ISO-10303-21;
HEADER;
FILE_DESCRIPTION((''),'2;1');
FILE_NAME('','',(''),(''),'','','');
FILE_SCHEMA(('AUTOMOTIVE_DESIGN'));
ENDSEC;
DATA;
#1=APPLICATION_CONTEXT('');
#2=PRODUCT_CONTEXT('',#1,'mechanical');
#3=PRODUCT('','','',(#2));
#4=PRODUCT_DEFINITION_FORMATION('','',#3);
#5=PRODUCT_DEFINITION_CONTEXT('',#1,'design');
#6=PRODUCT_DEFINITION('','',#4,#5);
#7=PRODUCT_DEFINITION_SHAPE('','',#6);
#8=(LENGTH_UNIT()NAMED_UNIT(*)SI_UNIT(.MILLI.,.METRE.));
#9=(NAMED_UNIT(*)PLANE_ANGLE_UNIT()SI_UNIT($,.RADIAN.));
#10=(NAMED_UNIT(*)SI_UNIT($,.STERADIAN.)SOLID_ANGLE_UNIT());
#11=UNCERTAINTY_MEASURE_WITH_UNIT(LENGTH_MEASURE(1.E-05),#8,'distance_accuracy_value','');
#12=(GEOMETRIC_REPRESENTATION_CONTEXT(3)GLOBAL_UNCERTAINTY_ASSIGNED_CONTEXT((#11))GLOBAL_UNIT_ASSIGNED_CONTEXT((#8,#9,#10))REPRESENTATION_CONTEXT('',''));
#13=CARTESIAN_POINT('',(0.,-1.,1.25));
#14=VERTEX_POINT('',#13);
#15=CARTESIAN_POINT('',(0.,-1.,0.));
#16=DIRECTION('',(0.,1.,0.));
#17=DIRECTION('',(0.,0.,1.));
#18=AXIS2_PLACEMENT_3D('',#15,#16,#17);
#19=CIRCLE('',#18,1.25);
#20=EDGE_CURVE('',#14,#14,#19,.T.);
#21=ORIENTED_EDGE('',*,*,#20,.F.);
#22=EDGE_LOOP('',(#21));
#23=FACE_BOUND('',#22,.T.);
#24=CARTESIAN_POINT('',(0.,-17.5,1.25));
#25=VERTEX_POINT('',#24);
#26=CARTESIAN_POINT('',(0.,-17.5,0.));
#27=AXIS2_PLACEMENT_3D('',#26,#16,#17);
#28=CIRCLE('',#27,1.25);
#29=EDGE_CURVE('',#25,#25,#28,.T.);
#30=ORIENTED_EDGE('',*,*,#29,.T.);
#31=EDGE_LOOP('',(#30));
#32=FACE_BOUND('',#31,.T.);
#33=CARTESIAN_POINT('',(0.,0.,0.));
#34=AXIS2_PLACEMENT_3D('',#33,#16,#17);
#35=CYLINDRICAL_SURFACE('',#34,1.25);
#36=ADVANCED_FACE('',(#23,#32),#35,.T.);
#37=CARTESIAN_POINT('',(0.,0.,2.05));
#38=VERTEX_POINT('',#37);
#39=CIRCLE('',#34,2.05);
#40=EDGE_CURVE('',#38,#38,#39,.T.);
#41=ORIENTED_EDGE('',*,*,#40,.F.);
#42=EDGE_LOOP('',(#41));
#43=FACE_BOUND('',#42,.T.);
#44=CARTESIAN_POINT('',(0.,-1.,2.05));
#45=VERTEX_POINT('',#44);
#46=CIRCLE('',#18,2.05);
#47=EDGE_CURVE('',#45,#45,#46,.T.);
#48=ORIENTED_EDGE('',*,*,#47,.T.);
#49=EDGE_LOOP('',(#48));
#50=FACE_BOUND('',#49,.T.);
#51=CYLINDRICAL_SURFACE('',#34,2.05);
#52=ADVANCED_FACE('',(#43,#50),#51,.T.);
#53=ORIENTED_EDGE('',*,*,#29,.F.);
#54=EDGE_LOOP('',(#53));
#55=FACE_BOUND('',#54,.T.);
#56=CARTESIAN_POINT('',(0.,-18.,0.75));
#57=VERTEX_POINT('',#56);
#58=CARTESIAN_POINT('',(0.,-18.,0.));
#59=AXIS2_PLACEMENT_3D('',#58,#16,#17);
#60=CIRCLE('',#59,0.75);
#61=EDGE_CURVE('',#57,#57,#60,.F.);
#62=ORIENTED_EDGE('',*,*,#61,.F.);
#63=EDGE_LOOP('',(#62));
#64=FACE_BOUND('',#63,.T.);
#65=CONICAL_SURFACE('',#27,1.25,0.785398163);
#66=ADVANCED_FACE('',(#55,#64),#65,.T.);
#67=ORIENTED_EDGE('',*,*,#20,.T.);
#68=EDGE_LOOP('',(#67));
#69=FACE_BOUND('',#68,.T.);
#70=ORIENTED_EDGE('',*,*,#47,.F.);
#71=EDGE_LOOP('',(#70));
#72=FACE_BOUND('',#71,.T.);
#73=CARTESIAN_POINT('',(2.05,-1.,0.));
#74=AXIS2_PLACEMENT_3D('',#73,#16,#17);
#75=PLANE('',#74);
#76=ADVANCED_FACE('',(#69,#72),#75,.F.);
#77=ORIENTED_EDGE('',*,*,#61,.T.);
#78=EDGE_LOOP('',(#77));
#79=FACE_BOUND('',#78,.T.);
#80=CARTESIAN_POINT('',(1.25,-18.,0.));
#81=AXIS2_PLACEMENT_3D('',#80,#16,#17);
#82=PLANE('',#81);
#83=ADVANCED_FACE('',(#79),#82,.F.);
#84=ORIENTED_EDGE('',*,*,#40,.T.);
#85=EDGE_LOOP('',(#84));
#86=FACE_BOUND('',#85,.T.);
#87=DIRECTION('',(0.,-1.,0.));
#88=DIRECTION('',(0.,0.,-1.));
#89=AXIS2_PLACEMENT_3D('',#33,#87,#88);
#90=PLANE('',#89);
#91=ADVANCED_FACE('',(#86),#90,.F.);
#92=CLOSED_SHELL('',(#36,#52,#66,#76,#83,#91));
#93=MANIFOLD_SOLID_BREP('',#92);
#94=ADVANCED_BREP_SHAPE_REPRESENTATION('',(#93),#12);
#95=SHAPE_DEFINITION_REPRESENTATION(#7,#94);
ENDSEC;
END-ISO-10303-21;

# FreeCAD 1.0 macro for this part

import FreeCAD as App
import Part
import Sketcher


def edges_at(feature, points):
    """Names of the edges that pass closest to the given points."""
    edges = feature.Shape.Edges
    near = lambda p: min(range(len(edges)), key=lambda i: edges[i].distToShape(Part.Vertex(*p))[0])
    return sorted({f"Edge{near(p) + 1}" for p in points})


def add_polygon(sketch, points):
    """Adds a closed chain of lines whose ends are joined by coincident constraints."""
    first, n = sketch.GeometryCount, len(points)
    for a, b in zip(points, points[1:] + points[:1]):
        sketch.addGeometry(Part.LineSegment(App.Vector(*a, 0), App.Vector(*b, 0)), False)
    for i in range(n):
        sketch.addConstraint(Sketcher.Constraint("Coincident", first + i, 2, first + (i + 1) % n, 1))

doc = App.newDocument("Part")
body = doc.addObject("PartDesign::Body", "Body")

sketch1 = body.newObject("Sketcher::SketchObject", "Sketch")
sketch1.AttachmentSupport = (doc.getObject("XY_Plane"), [""])
sketch1.MapMode = "FlatFace"
add_polygon(sketch1, [(2, 0), (0, 0), (0, -18), (1.2, -18), (1.2, -1), (2, -1)])
sketch1.addConstraint([
    Sketcher.Constraint("Horizontal", 0),
    Sketcher.Constraint("Vertical", 1),
    Sketcher.Constraint("Horizontal", 2),
    Sketcher.Constraint("Vertical", 3),
    Sketcher.Constraint("Horizontal", 4),
    Sketcher.Constraint("Vertical", 5),
    Sketcher.Constraint("Coincident", 0, 2, -1, 1),
    Sketcher.Constraint("DistanceY", 1, 2, 1, 1, 18.0),
    Sketcher.Constraint("DistanceY", 3, 1, 3, 2, 17.0),
    Sketcher.Constraint("DistanceX", 4, 1, 4, 2, 0.8),
    Sketcher.Constraint("DistanceX", 0, 2, 0, 1, 2.05),
])
revolution = body.newObject("PartDesign::Revolution", "Revolution")
revolution.Profile = sketch1
revolution.ReferenceAxis = (sketch1, ["V_Axis"])
revolution.Angle = 360
doc.recompute()

chamfer = body.newObject("PartDesign::Chamfer", "Chamfer")
chamfer.Base = (revolution, edges_at(revolution, [(-1.25, -18, 0)]))
chamfer.Size = 0.5

doc.recompute()
